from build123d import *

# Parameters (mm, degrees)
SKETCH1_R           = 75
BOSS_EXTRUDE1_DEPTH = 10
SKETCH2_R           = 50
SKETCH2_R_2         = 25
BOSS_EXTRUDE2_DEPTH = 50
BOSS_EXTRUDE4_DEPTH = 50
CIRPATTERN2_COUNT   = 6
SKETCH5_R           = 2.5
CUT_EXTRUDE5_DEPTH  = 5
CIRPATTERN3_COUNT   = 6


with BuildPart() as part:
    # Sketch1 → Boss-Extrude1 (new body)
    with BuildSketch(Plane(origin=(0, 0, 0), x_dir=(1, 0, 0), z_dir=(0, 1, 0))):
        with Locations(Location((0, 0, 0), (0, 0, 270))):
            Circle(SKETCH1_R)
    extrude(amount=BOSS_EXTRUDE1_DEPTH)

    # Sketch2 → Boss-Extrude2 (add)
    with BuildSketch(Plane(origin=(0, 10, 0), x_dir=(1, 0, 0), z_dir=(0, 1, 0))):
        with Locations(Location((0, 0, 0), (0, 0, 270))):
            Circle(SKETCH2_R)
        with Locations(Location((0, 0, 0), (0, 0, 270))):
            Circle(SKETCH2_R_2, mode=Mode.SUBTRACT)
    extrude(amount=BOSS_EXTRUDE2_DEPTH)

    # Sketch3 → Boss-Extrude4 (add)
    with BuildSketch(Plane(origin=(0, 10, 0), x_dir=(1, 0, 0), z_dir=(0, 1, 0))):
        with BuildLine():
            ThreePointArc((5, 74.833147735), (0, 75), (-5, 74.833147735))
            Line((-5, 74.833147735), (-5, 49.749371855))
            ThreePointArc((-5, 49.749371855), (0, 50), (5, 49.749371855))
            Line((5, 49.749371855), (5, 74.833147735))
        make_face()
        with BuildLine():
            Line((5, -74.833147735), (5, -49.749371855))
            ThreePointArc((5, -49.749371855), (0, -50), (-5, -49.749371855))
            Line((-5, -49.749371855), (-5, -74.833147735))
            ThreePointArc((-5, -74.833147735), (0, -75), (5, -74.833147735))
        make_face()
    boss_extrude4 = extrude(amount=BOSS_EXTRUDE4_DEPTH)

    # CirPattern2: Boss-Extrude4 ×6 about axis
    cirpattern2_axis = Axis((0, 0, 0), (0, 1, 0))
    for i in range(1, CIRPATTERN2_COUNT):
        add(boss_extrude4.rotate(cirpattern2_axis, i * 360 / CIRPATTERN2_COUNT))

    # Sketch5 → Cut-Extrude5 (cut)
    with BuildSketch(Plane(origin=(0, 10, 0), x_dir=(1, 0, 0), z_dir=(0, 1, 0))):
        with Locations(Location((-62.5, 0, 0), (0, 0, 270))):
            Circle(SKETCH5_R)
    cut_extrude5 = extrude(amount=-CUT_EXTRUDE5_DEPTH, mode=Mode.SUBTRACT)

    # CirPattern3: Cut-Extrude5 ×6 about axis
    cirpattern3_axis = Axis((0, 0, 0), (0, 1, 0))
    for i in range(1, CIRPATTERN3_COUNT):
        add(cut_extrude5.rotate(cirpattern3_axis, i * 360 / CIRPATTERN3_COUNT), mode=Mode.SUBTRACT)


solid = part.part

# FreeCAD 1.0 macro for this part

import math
import FreeCAD as App
import Part
import Sketcher

V = App.Vector

doc = App.newDocument("Part")
body = doc.addObject("PartDesign::Body", "Body")

sketch1 = doc.addObject("Sketcher::SketchObject", "Sketch")
body.addObject(sketch1)
sketch1.AttachmentSupport = (doc.XZ_Plane, [""])
sketch1.MapMode = "FlatFace"
sketch1.addGeometry(Part.Circle(V(0, 0, 0), V(0, 0, 1), 75), False)
sketch1.addConstraint(Sketcher.Constraint("Coincident", 0, 3, -1, 1))
sketch1.addConstraint(Sketcher.Constraint("Diameter", 0, 150.0))
pad1 = doc.addObject("PartDesign::Pad", "Pad")
body.addObject(pad1)
pad1.Profile = sketch1
pad1.Length = 10
pad1.Reversed = True

sketch2 = doc.addObject("Sketcher::SketchObject", "Sketch001")
body.addObject(sketch2)
sketch2.AttachmentSupport = (doc.XZ_Plane, [""])
sketch2.MapMode = "FlatFace"
sketch2.AttachmentOffset = App.Placement(V(0, 0, -10), App.Rotation())
sketch2.addGeometry(Part.Circle(V(0, 0, 0), V(0, 0, 1), 50), False)
sketch2.addGeometry(Part.Circle(V(0, 0, 0), V(0, 0, 1), 25), False)
sketch2.addConstraint(Sketcher.Constraint("Coincident", 0, 3, -1, 1))
sketch2.addConstraint(Sketcher.Constraint("Coincident", 1, 3, -1, 1))
sketch2.addConstraint(Sketcher.Constraint("Diameter", 0, 100.0))
sketch2.addConstraint(Sketcher.Constraint("Diameter", 1, 50.0))
pad2 = doc.addObject("PartDesign::Pad", "Pad001")
body.addObject(pad2)
pad2.Profile = sketch2
pad2.Length = 50
pad2.Reversed = True

sketch3 = doc.addObject("Sketcher::SketchObject", "Sketch002")
body.addObject(sketch3)
sketch3.AttachmentSupport = (doc.XZ_Plane, [""])
sketch3.MapMode = "FlatFace"
sketch3.AttachmentOffset = App.Placement(V(0, 0, -10), App.Rotation())
sketch3.addGeometry(Part.ArcOfCircle(Part.Circle(V(0, 0, 0), V(0, 0, 1), 75), math.radians(-93.82), math.radians(-86.18)), False)
sketch3.addGeometry(Part.LineSegment(V(-5, -75, 0), V(-5, -50, 0)), False)
sketch3.addGeometry(Part.ArcOfCircle(Part.Circle(V(0, 0, 0), V(0, 0, 1), 50), math.radians(-95.74), math.radians(-84.26)), False)
sketch3.addGeometry(Part.LineSegment(V(5, -50, 0), V(5, -75, 0)), False)
sketch3.addGeometry(Part.LineSegment(V(5, 75, 0), V(5, 50, 0)), False)
sketch3.addGeometry(Part.ArcOfCircle(Part.Circle(V(0, 0, 0), V(0, 0, 1), 50), math.radians(84.26), math.radians(95.74)), False)
sketch3.addGeometry(Part.LineSegment(V(-5, 50, 0), V(-5, 75, 0)), False)
sketch3.addGeometry(Part.ArcOfCircle(Part.Circle(V(0, 0, 0), V(0, 0, 1), 75), math.radians(86.18), math.radians(93.82)), False)
sketch3.addConstraint(Sketcher.Constraint("Coincident", 0, 1, 1, 1))
sketch3.addConstraint(Sketcher.Constraint("Coincident", 1, 2, 2, 1))
sketch3.addConstraint(Sketcher.Constraint("Coincident", 2, 2, 3, 1))
sketch3.addConstraint(Sketcher.Constraint("Coincident", 3, 2, 0, 2))
sketch3.addConstraint(Sketcher.Constraint("Coincident", 4, 2, 5, 1))
sketch3.addConstraint(Sketcher.Constraint("Coincident", 5, 2, 6, 1))
sketch3.addConstraint(Sketcher.Constraint("Coincident", 6, 2, 7, 2))
sketch3.addConstraint(Sketcher.Constraint("Coincident", 7, 1, 4, 1))
sketch3.addConstraint(Sketcher.Constraint("Vertical", 1))
sketch3.addConstraint(Sketcher.Constraint("Vertical", 3))
sketch3.addConstraint(Sketcher.Constraint("Vertical", 4))
sketch3.addConstraint(Sketcher.Constraint("Vertical", 6))
sketch3.addConstraint(Sketcher.Constraint("Coincident", 0, 3, -1, 1))
sketch3.addConstraint(Sketcher.Constraint("Coincident", 2, 3, -1, 1))
sketch3.addConstraint(Sketcher.Constraint("Coincident", 5, 3, -1, 1))
sketch3.addConstraint(Sketcher.Constraint("Coincident", 7, 3, -1, 1))
sketch3.addConstraint(Sketcher.Constraint("Equal", 2, 5))
sketch3.addConstraint(Sketcher.Constraint("Equal", 0, 7))
sketch3.addConstraint(Sketcher.Constraint("Horizontal", 1, 2, 2, 2))
sketch3.addConstraint(Sketcher.Constraint("Horizontal", 4, 2, 5, 2))
sketch3.addConstraint(Sketcher.Constraint("Vertical", 3, 2, 4, 2))
sketch3.addConstraint(Sketcher.Constraint("Radius", 0, 75.0))
sketch3.addConstraint(Sketcher.Constraint("Radius", 2, 50.0))
sketch3.addConstraint(Sketcher.Constraint("DistanceX", 0, 1, -1, 1, 5.0))
pad3 = doc.addObject("PartDesign::Pad", "Pad002")
body.addObject(pad3)
pad3.Profile = sketch3
pad3.Length = 50
pad3.Reversed = True
doc.recompute()

polarpattern = doc.addObject("PartDesign::PolarPattern", "PolarPattern")
body.addObject(polarpattern)
polarpattern.Originals = [pad3]
polarpattern.Axis = (doc.Y_Axis, [""])
polarpattern.Angle = 360
polarpattern.Occurrences = 6
body.Tip = polarpattern

sketch4 = doc.addObject("Sketcher::SketchObject", "Sketch003")
body.addObject(sketch4)
sketch4.AttachmentSupport = (doc.XZ_Plane, [""])
sketch4.MapMode = "FlatFace"
sketch4.AttachmentOffset = App.Placement(V(0, 0, -10), App.Rotation())
sketch4.addGeometry(Part.Circle(V(-62.5, 0, 0), V(0, 0, 1), 2.5), False)
sketch4.addConstraint(Sketcher.Constraint("PointOnObject", 0, 3, -1))
sketch4.addConstraint(Sketcher.Constraint("Diameter", 0, 5.0))
sketch4.addConstraint(Sketcher.Constraint("DistanceX", 0, 3, -1, 1, 62.5))
pocket1 = doc.addObject("PartDesign::Pocket", "Pocket")
body.addObject(pocket1)
pocket1.Profile = sketch4
pocket1.Length = 5
pocket1.Reversed = True
doc.recompute()

polarpattern2 = doc.addObject("PartDesign::PolarPattern", "PolarPattern001")
body.addObject(polarpattern2)
polarpattern2.Originals = [pocket1]
polarpattern2.Axis = (doc.Y_Axis, [""])
polarpattern2.Angle = 360
polarpattern2.Occurrences = 6
body.Tip = polarpattern2

doc.recompute()
